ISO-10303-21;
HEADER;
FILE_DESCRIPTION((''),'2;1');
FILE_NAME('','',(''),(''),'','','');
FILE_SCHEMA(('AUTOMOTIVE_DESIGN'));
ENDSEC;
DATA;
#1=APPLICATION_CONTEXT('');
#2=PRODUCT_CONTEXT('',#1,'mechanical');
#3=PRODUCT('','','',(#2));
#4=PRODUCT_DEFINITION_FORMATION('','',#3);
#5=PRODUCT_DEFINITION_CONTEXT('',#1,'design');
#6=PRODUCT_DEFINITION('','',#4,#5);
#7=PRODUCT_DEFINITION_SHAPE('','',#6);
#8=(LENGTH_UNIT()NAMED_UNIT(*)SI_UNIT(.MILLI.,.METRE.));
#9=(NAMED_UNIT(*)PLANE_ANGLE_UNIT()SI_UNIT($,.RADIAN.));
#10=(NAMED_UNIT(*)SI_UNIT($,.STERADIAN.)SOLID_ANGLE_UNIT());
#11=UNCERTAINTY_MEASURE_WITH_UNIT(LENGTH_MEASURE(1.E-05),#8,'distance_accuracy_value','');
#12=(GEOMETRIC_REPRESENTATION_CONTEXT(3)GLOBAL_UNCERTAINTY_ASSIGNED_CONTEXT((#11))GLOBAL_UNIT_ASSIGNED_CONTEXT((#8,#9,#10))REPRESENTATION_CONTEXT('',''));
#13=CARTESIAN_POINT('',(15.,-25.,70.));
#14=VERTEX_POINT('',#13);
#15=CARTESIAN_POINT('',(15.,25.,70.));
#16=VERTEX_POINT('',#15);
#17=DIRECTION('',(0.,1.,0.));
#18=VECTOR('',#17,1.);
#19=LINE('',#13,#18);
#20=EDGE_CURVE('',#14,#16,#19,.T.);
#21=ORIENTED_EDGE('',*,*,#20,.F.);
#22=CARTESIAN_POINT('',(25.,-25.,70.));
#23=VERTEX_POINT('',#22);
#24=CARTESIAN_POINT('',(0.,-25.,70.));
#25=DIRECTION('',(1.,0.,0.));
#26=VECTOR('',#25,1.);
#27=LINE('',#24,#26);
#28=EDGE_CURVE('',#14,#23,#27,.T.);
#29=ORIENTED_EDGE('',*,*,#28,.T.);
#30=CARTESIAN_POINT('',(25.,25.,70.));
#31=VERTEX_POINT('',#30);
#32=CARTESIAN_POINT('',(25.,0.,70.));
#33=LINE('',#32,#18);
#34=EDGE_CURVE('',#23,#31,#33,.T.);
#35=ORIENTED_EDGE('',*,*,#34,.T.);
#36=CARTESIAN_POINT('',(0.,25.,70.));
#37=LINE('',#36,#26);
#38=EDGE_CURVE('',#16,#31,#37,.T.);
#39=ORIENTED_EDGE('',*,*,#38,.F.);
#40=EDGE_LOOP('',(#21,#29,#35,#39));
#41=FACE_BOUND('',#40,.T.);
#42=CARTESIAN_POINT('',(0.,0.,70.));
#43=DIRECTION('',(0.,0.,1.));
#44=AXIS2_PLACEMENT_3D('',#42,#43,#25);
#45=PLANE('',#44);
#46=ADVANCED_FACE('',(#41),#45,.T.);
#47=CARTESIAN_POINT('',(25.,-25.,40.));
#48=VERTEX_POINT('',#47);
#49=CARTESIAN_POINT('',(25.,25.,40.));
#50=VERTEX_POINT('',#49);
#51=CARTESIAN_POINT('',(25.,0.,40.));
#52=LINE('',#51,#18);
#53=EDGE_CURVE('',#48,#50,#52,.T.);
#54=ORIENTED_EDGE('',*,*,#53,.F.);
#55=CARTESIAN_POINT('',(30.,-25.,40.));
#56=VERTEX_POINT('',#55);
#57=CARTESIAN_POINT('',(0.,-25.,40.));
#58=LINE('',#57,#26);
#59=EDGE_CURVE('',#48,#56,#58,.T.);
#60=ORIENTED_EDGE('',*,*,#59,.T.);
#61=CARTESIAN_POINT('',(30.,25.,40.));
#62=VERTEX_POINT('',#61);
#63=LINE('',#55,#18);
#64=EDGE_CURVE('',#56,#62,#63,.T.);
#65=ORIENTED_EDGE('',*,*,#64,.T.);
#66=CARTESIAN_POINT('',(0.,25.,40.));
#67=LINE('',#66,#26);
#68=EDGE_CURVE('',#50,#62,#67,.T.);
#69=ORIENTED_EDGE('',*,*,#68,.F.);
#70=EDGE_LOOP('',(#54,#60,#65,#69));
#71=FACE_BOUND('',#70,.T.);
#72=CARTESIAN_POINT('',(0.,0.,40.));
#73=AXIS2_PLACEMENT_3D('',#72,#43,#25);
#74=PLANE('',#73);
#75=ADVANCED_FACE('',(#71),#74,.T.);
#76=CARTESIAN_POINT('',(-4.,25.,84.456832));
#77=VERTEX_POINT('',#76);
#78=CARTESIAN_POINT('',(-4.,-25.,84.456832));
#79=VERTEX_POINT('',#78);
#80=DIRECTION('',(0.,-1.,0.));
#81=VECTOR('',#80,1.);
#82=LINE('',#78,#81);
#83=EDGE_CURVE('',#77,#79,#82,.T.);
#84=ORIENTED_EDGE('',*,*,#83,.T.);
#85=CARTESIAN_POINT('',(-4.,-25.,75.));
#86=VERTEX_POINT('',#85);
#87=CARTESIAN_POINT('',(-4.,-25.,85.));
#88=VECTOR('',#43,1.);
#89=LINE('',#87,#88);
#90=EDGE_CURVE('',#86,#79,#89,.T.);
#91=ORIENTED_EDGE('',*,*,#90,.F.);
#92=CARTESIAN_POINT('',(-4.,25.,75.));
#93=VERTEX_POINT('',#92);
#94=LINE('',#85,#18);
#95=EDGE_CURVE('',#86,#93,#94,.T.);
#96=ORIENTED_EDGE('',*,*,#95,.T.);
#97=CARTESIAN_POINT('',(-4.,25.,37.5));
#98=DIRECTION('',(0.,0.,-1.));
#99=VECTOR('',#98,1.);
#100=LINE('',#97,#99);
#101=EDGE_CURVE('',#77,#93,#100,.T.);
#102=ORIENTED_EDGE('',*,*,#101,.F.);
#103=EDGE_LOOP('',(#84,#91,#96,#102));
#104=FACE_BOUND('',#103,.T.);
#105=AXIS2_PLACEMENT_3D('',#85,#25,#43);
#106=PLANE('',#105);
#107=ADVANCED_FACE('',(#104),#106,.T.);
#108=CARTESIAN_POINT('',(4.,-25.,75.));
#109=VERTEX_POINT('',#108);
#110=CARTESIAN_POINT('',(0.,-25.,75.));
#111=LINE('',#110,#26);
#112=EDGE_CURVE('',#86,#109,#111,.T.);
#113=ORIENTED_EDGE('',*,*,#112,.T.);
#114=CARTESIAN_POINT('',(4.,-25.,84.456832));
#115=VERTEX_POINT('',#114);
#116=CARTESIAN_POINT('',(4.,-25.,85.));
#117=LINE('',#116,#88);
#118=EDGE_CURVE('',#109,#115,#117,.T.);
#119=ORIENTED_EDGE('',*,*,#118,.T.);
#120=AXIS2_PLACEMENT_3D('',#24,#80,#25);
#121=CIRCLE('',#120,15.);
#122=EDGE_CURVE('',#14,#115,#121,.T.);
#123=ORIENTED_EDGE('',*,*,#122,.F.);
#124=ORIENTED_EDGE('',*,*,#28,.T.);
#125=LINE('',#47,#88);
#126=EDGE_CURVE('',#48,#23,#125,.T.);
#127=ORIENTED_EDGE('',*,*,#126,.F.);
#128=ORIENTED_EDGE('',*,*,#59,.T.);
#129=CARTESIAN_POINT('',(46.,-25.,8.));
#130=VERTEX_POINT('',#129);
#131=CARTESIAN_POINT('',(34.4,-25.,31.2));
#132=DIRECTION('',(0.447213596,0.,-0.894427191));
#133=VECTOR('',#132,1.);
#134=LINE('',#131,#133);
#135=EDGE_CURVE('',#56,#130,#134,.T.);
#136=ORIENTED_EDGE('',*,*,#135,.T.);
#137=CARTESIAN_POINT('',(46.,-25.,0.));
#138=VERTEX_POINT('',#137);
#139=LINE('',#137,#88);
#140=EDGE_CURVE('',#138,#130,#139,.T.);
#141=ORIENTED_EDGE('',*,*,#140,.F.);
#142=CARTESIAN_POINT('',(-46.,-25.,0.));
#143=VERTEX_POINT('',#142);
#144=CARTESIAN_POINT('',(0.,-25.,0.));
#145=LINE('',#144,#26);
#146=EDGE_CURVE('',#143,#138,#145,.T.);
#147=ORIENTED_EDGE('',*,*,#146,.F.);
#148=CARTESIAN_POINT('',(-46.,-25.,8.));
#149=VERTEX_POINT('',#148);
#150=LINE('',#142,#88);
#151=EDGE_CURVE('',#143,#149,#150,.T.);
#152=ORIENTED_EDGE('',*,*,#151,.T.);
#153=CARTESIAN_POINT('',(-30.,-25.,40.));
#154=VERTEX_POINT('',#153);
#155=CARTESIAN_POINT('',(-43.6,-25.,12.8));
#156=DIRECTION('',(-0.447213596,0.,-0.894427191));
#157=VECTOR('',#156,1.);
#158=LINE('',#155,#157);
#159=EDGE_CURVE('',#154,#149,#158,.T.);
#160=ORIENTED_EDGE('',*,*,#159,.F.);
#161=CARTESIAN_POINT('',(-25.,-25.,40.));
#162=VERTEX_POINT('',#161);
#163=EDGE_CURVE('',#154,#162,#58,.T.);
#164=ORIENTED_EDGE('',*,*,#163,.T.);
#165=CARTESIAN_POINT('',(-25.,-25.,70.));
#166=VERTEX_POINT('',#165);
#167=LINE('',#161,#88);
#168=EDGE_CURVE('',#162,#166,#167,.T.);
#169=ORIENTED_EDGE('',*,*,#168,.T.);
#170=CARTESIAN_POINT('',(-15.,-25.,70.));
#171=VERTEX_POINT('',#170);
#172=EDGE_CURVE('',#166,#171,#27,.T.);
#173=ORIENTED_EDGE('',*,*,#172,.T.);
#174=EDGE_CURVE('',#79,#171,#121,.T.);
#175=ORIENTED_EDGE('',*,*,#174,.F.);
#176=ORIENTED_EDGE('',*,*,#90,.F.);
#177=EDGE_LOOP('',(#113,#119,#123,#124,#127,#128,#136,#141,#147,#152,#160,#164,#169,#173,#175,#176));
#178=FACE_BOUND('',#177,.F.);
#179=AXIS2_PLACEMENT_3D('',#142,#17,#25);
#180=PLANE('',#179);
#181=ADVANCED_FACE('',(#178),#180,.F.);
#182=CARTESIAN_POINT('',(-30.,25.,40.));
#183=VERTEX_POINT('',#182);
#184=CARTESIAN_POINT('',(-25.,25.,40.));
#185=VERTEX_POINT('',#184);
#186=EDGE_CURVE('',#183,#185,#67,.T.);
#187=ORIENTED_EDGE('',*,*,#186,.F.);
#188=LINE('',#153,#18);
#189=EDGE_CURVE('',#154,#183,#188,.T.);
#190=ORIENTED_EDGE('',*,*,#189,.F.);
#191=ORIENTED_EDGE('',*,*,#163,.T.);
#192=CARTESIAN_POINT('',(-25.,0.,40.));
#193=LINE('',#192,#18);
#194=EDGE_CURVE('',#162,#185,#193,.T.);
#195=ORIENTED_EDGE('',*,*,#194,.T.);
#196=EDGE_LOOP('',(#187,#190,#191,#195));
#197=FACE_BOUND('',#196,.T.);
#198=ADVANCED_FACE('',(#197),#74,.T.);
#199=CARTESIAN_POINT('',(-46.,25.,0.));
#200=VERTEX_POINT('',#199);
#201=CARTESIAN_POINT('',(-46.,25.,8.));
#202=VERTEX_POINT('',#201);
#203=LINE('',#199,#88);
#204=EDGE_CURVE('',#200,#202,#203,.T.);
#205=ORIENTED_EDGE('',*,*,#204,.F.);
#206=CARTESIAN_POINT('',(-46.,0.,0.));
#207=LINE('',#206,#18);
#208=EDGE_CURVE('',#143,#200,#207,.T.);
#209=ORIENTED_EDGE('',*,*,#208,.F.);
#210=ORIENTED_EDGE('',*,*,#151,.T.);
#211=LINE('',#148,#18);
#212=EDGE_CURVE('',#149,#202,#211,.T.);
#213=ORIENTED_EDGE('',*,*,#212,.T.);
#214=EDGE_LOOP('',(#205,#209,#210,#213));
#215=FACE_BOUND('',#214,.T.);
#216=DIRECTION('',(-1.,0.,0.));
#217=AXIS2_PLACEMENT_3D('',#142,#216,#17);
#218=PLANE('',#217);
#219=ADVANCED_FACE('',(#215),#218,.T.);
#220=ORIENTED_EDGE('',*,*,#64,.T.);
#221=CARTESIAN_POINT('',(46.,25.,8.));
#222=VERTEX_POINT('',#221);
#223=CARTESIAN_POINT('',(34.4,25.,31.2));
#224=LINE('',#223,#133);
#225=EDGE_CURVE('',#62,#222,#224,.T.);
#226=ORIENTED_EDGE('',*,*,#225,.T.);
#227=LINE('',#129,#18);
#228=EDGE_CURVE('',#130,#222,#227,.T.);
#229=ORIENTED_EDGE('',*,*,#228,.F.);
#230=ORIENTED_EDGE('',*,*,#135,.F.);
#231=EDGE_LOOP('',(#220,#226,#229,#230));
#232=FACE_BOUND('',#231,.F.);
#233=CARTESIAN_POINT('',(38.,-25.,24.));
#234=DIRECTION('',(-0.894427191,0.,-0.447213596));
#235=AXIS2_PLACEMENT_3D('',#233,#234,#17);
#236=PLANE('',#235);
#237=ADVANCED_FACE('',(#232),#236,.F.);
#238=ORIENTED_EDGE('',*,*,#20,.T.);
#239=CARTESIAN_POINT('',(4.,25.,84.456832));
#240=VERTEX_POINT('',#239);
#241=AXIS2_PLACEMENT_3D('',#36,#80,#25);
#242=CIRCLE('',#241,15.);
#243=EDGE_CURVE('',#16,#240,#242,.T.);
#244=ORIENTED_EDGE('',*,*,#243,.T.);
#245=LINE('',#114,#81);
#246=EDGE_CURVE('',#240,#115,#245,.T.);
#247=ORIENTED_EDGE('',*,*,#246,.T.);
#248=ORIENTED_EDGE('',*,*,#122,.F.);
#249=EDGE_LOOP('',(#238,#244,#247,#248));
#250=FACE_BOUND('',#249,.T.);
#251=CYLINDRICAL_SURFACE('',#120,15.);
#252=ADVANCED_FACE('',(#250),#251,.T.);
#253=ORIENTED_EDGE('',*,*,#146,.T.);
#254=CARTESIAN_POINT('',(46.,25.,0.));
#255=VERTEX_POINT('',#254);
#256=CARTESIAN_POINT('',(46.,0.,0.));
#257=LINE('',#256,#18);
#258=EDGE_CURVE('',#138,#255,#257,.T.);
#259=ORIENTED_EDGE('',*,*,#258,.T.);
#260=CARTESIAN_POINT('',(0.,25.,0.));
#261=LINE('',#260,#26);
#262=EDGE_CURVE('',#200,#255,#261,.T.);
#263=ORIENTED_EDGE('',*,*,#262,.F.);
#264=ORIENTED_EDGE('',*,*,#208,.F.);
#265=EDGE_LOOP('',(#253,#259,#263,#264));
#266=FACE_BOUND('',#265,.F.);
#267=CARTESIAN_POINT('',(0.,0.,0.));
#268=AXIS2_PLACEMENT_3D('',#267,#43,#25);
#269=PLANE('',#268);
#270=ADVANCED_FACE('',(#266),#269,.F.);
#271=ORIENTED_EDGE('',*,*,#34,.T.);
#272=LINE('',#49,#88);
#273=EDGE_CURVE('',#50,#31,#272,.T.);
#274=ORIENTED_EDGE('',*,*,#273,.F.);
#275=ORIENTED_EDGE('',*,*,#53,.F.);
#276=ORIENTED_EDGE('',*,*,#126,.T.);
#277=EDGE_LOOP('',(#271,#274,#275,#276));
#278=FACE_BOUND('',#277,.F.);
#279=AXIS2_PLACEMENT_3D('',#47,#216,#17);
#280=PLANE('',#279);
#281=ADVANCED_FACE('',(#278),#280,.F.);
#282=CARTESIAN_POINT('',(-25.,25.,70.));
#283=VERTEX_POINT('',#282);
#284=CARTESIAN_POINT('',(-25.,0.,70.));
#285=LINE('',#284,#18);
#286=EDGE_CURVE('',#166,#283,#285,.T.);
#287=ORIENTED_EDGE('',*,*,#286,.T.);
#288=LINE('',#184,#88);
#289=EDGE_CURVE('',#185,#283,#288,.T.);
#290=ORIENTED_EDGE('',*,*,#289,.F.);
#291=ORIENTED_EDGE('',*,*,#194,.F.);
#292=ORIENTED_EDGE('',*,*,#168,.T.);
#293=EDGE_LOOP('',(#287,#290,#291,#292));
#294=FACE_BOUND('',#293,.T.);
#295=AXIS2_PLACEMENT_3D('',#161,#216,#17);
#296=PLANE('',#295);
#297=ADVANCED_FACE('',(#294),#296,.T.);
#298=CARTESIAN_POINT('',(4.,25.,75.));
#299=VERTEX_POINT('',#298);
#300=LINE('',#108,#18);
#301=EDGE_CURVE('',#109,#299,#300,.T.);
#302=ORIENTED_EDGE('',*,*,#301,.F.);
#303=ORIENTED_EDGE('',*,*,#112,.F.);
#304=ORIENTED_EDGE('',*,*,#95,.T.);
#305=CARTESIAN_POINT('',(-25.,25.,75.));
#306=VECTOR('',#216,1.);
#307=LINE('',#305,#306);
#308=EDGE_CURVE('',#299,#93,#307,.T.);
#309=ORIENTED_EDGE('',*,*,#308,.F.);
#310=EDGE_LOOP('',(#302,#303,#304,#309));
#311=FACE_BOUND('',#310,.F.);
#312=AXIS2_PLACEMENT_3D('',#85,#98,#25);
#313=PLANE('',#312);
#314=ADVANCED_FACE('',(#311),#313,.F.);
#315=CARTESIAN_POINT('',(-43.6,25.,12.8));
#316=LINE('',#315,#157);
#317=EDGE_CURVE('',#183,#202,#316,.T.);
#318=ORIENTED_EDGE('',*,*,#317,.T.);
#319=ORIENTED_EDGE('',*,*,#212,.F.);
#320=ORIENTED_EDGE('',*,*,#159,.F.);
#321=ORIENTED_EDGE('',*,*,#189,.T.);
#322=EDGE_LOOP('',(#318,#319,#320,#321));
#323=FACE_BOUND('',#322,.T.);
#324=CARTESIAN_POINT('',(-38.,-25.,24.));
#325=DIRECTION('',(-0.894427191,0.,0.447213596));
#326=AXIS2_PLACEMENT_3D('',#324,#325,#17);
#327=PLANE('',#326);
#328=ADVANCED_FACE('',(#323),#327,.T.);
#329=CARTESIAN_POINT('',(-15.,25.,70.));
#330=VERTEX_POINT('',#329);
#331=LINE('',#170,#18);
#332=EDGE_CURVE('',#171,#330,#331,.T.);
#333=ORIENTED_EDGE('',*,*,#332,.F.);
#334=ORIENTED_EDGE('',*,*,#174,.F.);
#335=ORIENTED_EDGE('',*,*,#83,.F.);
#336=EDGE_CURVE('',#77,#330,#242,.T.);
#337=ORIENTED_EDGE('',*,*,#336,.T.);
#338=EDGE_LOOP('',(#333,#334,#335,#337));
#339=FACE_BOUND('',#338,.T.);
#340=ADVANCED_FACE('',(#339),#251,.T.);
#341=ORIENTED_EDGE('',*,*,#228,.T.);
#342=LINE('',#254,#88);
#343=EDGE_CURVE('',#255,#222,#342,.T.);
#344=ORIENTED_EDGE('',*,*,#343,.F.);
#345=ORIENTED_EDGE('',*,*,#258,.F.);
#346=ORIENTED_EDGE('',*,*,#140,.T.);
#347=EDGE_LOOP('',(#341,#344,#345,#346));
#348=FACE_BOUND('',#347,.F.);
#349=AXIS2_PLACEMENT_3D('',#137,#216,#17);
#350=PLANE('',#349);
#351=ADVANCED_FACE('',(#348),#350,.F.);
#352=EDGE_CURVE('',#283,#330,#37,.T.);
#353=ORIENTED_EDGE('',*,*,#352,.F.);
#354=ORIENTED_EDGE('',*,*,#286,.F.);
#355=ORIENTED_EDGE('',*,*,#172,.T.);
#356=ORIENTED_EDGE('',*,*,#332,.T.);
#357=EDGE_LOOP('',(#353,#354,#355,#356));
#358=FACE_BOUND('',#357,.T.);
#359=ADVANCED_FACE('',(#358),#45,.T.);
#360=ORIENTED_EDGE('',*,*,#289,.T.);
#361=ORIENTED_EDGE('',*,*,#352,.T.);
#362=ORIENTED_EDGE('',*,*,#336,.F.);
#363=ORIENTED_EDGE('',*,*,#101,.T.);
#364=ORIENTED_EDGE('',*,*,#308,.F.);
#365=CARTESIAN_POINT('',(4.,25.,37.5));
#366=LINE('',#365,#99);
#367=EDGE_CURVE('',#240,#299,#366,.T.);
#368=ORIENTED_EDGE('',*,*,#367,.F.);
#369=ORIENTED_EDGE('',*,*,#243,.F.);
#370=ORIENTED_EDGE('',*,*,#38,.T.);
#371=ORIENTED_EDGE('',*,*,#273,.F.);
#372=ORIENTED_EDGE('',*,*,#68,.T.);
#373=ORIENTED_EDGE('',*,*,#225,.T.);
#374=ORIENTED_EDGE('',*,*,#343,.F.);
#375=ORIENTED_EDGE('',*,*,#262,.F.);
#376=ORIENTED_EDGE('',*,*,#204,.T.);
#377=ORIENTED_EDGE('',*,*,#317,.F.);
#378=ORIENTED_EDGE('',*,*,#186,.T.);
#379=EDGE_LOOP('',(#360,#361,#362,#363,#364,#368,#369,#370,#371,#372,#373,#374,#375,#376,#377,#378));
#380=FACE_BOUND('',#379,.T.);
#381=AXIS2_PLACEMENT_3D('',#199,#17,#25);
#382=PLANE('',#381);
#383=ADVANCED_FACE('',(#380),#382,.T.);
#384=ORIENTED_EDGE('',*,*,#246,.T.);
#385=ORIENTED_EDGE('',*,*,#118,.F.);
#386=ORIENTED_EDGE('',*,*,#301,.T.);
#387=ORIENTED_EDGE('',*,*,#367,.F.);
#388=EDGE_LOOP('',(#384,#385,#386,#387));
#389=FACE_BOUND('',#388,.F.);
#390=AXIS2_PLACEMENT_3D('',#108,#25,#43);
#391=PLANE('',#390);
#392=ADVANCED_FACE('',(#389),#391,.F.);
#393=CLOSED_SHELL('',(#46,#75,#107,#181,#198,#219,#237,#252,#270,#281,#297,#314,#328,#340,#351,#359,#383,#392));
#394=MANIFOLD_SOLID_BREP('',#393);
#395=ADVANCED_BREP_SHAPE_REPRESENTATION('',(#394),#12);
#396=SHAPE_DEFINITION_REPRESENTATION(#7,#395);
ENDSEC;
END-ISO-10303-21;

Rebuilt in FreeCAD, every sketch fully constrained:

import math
import FreeCAD as App
import Part
import Sketcher
Q = App.Units.Quantity


def edges_at(feature, points):
    """Names of the edges that pass closest to the given points."""
    edges = feature.Shape.Edges
    near = lambda p: min(range(len(edges)), key=lambda i: edges[i].distToShape(Part.Vertex(*p))[0])
    return sorted({f"Edge{near(p) + 1}" for p in points})

doc = App.newDocument("Part")
body = doc.addObject("PartDesign::Body", "Body")

# Sketch on XY plane
sketch1 = body.newObject("Sketcher::SketchObject", "Sketch")
sketch1.AttachmentSupport = (doc.getObject("XY_Plane"), [""])
sketch1.MapMode = "FlatFace"
sketch1.addGeometry([
    Part.LineSegment(App.Vector(-46, 25, 0), App.Vector(-46, -25, 0)),
    Part.LineSegment(App.Vector(-46, -25, 0), App.Vector(46, -25, 0)),
    Part.LineSegment(App.Vector(46, -25, 0), App.Vector(46, 25, 0)),
    Part.LineSegment(App.Vector(46, 25, 0), App.Vector(-46, 25, 0)),
], False)
sketch1.addConstraint([
    Sketcher.Constraint("Coincident", 0, 2, 1, 1),
    Sketcher.Constraint("Coincident", 1, 2, 2, 1),
    Sketcher.Constraint("Coincident", 2, 2, 3, 1),
    Sketcher.Constraint("Coincident", 3, 2, 0, 1),
    Sketcher.Constraint("Vertical", 0),
    Sketcher.Constraint("Horizontal", 1),
    Sketcher.Constraint("Vertical", 2),
    Sketcher.Constraint("Horizontal", 3),
    Sketcher.Constraint("Symmetric", 0, 2, 2, 2, -1, 1),
    Sketcher.Constraint("DistanceX", 1, 1, 1, 2, Q("92 mm")),
    Sketcher.Constraint("DistanceY", 0, 2, 0, 1, Q("50 mm")),
])
pad1 = body.newObject("PartDesign::Pad", "Pad")
pad1.Profile = sketch1
pad1.Length = 40
doc.recompute()

chamfer = body.newObject("PartDesign::Chamfer", "Chamfer")
chamfer.Base = (pad1, edges_at(pad1, [(46, 0, 40)]))
chamfer.ChamferType = "Two distances"
chamfer.Size = 16
chamfer.Size2 = 32
chamfer.FlipDirection = True
doc.recompute()

chamfer2 = body.newObject("PartDesign::Chamfer", "Chamfer001")
chamfer2.Base = (chamfer, edges_at(chamfer, [(-46, 0, 40)]))
chamfer2.ChamferType = "Two distances"
chamfer2.Size = 16
chamfer2.Size2 = 32

# Sketch on XY plane
sketch2 = body.newObject("Sketcher::SketchObject", "Sketch001")
sketch2.AttachmentSupport = (doc.getObject("XY_Plane"), [""])
sketch2.MapMode = "FlatFace"
sketch2.AttachmentOffset = App.Placement(App.Vector(0, 0, 40), App.Rotation())
sketch2.addGeometry([
    Part.LineSegment(App.Vector(-25, 25, 0), App.Vector(-25, -25, 0)),
    Part.LineSegment(App.Vector(-25, -25, 0), App.Vector(25, -25, 0)),
    Part.LineSegment(App.Vector(25, -25, 0), App.Vector(25, 25, 0)),
    Part.LineSegment(App.Vector(25, 25, 0), App.Vector(-25, 25, 0)),
], False)
sketch2.addConstraint([
    Sketcher.Constraint("Coincident", 0, 2, 1, 1),
    Sketcher.Constraint("Coincident", 1, 2, 2, 1),
    Sketcher.Constraint("Coincident", 2, 2, 3, 1),
    Sketcher.Constraint("Coincident", 3, 2, 0, 1),
    Sketcher.Constraint("Vertical", 0),
    Sketcher.Constraint("Horizontal", 1),
    Sketcher.Constraint("Vertical", 2),
    Sketcher.Constraint("Horizontal", 3),
    Sketcher.Constraint("Symmetric", 0, 2, 2, 2, -1, 1),
    Sketcher.Constraint("Equal", 3, 0),
    Sketcher.Constraint("DistanceX", 1, 1, 1, 2, Q("50 mm")),
])
pad2 = body.newObject("PartDesign::Pad", "Pad001")
pad2.Profile = sketch2
pad2.Length = 30

# Sketch on XZ plane
sketch3 = body.newObject("Sketcher::SketchObject", "Sketch002")
sketch3.AttachmentSupport = (doc.getObject("XZ_Plane"), [""])
sketch3.MapMode = "FlatFace"
sketch3.AttachmentOffset = App.Placement(App.Vector(0, 0, 25), App.Rotation())
sketch3.addGeometry([
    Part.LineSegment(App.Vector(-15, 70, 0), App.Vector(15, 70, 0)),
    Part.ArcOfCircle(Part.Circle(App.Vector(0, 70, 0), App.Vector(0, 0, 1), 15), math.radians(0), math.radians(180)),
], False)
sketch3.addConstraint([
    Sketcher.Constraint("Coincident", 0, 1, 1, 2),
    Sketcher.Constraint("Coincident", 1, 1, 0, 2),
    Sketcher.Constraint("Horizontal", 0),
    Sketcher.Constraint("PointOnObject", 1, 3, -2),
    Sketcher.Constraint("Horizontal", 1, 3, 0, 1),
    Sketcher.Constraint("Radius", 1, Q("15 mm")),
    Sketcher.Constraint("DistanceY", -1, 1, 1, 3, Q("70 mm")),
])
pad3 = body.newObject("PartDesign::Pad", "Pad002")
pad3.Profile = sketch3
pad3.Length = 50
pad3.Reversed = True

# Sketch on XZ plane
sketch4 = body.newObject("Sketcher::SketchObject", "Sketch003")
sketch4.AttachmentSupport = (doc.getObject("XZ_Plane"), [""])
sketch4.MapMode = "FlatFace"
sketch4.AttachmentOffset = App.Placement(App.Vector(0, 0, 25), App.Rotation())
sketch4.addGeometry([
    Part.LineSegment(App.Vector(-4, 95, 0), App.Vector(-4, 75, 0)),
    Part.LineSegment(App.Vector(-4, 75, 0), App.Vector(4, 75, 0)),
    Part.LineSegment(App.Vector(4, 75, 0), App.Vector(4, 95, 0)),
    Part.LineSegment(App.Vector(4, 95, 0), App.Vector(-4, 95, 0)),
], False)
sketch4.addConstraint([
    Sketcher.Constraint("Coincident", 0, 2, 1, 1),
    Sketcher.Constraint("Coincident", 1, 2, 2, 1),
    Sketcher.Constraint("Coincident", 2, 2, 3, 1),
    Sketcher.Constraint("Coincident", 3, 2, 0, 1),
    Sketcher.Constraint("Vertical", 0),
    Sketcher.Constraint("Horizontal", 1),
    Sketcher.Constraint("Vertical", 2),
    Sketcher.Constraint("Horizontal", 3),
    Sketcher.Constraint("DistanceX", 1, 1, 1, 2, Q("8 mm")),
    Sketcher.Constraint("DistanceY", 0, 2, 0, 1, Q("20 mm")),
    Sketcher.Constraint("DistanceX", 0, 2, -1, 1, Q("4 mm")),
    Sketcher.Constraint("DistanceY", -1, 1, 0, 2, Q("75 mm")),
])
pocket1 = body.newObject("PartDesign::Pocket", "Pocket")
pocket1.Profile = sketch4
pocket1.Type = "ThroughAll"

doc.recompute()
